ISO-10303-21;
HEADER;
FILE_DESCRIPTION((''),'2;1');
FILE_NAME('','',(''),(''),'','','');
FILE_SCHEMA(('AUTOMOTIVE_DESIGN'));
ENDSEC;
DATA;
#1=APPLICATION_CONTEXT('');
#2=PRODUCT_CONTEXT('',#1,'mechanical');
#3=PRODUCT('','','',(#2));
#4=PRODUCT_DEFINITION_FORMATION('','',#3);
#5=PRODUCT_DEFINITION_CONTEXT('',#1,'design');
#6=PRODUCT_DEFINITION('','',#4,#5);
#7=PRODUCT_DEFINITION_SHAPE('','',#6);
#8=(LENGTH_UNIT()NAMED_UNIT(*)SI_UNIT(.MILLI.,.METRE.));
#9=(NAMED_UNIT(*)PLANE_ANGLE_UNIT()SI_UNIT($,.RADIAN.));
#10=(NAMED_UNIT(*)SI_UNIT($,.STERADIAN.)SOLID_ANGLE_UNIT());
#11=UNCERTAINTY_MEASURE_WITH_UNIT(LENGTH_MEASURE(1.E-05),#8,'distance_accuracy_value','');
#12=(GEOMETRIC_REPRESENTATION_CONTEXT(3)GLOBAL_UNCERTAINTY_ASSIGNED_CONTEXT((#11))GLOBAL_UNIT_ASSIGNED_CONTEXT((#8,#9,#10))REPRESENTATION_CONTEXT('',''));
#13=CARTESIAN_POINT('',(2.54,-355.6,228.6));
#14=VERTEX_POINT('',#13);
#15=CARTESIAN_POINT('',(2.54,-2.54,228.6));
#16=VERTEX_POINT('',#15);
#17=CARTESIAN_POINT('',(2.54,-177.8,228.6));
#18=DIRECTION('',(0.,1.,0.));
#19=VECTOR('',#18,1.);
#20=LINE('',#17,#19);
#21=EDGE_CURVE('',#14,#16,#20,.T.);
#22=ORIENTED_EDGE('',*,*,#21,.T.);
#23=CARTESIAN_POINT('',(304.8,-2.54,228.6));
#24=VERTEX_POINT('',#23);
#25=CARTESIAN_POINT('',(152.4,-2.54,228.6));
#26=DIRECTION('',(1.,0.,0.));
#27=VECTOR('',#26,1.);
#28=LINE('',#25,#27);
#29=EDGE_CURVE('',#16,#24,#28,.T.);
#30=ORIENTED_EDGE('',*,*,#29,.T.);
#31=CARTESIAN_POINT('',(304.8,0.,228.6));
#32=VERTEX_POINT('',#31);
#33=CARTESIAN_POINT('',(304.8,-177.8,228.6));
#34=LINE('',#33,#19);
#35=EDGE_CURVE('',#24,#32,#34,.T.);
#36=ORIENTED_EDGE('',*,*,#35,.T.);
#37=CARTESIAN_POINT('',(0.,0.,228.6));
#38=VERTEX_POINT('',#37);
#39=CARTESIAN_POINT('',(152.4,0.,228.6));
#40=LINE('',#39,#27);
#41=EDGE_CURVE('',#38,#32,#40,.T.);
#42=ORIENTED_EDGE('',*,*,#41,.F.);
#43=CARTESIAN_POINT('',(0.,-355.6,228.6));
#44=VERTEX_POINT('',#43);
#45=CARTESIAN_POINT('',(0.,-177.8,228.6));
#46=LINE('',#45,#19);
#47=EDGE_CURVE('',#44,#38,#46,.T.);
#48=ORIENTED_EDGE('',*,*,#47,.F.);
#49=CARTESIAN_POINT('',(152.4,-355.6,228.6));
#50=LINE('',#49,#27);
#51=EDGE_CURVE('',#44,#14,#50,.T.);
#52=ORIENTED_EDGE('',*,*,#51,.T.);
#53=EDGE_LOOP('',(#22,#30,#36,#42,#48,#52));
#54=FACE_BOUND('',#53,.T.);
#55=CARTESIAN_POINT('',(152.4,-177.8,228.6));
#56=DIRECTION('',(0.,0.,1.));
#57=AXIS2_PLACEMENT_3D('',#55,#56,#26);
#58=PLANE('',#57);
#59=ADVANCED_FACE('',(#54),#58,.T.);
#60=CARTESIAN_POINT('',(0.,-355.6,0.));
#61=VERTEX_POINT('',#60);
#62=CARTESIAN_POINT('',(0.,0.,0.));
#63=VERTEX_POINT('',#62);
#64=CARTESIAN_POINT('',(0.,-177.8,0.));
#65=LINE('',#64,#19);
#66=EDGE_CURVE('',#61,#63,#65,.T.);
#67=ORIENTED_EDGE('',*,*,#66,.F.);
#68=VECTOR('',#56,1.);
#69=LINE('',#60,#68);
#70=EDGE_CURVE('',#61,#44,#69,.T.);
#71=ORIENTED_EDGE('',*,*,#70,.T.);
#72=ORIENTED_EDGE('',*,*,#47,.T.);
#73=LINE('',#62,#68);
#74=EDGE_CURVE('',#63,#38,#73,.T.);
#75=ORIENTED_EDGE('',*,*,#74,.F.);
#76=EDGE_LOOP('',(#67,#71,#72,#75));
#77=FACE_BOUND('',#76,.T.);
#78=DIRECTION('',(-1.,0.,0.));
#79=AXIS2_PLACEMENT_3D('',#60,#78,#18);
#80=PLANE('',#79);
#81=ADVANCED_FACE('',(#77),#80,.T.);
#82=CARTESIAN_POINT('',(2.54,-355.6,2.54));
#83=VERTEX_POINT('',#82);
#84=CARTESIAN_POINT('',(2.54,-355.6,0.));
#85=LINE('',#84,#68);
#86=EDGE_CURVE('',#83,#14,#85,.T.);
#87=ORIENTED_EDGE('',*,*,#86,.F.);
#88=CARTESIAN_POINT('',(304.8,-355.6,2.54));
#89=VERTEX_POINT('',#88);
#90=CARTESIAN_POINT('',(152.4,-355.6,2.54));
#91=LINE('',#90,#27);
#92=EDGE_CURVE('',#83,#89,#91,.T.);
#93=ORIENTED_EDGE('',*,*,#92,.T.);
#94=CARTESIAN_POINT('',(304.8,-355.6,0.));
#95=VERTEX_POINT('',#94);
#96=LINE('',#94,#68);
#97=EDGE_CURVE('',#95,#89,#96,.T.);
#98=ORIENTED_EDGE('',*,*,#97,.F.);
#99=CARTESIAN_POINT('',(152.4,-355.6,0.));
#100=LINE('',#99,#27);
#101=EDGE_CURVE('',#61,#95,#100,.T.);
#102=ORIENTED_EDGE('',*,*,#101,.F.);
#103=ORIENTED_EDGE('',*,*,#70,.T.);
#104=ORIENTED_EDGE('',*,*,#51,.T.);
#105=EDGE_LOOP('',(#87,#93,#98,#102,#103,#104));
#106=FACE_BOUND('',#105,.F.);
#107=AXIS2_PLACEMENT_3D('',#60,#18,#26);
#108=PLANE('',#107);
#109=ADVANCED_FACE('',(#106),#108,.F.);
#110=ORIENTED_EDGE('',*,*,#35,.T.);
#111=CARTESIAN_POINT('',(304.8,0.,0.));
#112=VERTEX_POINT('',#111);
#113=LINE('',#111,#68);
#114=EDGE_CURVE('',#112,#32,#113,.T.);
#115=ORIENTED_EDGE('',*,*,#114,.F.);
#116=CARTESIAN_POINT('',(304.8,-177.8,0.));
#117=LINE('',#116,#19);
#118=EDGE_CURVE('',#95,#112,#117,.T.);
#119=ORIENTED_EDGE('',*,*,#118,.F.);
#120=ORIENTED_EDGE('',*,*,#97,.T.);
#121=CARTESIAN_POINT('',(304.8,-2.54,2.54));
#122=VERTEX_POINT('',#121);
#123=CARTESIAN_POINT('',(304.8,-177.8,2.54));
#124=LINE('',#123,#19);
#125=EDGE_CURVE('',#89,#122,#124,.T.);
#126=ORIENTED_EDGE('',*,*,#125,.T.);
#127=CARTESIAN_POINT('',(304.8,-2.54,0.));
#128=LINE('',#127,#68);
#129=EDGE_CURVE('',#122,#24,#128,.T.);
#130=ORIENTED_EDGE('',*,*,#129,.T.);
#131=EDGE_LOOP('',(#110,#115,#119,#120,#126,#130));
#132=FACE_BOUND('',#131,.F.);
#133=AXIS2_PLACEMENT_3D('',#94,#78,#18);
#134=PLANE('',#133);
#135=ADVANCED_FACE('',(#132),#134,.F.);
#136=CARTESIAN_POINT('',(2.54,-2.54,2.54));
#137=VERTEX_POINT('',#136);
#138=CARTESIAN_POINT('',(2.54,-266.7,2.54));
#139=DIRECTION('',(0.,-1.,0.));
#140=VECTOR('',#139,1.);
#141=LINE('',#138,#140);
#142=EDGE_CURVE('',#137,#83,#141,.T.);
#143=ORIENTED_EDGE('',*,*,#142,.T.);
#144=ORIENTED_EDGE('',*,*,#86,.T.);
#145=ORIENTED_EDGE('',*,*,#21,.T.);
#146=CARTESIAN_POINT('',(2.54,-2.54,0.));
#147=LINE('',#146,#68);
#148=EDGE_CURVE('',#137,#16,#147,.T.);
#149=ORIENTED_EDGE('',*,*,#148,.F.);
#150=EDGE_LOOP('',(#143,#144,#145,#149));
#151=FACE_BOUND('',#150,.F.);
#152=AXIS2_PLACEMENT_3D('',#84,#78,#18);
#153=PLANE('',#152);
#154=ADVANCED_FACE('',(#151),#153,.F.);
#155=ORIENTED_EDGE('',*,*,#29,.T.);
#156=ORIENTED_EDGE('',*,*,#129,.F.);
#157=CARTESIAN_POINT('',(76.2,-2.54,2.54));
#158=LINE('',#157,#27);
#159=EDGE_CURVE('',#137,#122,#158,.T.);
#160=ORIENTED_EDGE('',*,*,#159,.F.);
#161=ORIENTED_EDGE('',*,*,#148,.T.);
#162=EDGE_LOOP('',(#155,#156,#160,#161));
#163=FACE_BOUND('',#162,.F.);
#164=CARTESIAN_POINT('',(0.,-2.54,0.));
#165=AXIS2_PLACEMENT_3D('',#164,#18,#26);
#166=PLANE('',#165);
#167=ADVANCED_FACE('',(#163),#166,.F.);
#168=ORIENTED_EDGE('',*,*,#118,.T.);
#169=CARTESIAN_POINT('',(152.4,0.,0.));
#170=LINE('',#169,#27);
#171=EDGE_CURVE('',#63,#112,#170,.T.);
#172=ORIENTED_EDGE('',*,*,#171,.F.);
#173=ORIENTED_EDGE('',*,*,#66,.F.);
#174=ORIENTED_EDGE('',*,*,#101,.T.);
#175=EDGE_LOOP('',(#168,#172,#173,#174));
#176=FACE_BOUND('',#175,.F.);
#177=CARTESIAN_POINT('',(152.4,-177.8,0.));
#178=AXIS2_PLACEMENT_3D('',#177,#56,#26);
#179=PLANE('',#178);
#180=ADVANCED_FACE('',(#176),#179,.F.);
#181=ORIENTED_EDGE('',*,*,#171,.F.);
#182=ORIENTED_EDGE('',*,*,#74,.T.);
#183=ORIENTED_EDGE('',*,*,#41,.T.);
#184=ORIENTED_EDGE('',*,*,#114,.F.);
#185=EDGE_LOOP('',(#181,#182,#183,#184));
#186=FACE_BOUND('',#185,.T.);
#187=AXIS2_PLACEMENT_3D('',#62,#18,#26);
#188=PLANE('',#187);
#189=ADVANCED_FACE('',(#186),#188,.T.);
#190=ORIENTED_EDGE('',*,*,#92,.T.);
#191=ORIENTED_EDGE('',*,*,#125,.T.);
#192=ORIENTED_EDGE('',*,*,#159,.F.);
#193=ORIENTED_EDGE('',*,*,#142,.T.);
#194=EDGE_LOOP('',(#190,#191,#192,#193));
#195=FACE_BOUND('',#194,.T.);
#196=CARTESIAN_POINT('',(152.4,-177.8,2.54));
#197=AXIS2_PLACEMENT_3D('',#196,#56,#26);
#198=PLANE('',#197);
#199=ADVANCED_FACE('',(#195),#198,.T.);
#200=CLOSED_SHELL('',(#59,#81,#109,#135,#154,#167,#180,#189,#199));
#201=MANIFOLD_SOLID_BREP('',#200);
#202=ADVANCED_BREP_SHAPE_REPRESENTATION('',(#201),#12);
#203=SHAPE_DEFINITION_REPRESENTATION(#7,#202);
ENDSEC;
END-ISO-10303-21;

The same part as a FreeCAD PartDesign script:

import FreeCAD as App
import Part
import Sketcher

V = App.Vector
Q = App.Units.Quantity


def faces_at(feature, points):
    """Names of the faces that lie closest to the given points."""
    faces = feature.Shape.Faces
    near = lambda p: min(range(len(faces)), key=lambda i: faces[i].distToShape(Part.Vertex(*p))[0])
    return sorted({f"Face{near(p) + 1}" for p in points})


def add_polygon(sketch, points):
    """Adds a closed chain of lines whose ends are joined by coincident constraints."""
    first, n = sketch.GeometryCount, len(points)
    for a, b in zip(points, points[1:] + points[:1]):
        sketch.addGeometry(Part.LineSegment(App.Vector(*a, 0), App.Vector(*b, 0)), False)
    for i in range(n):
        sketch.addConstraint(Sketcher.Constraint("Coincident", first + i, 2, first + (i + 1) % n, 1))

doc = App.newDocument("Part")
params = doc.addObject("Spreadsheet::Sheet", "Params")
for row, (alias, value) in enumerate([
    ("sketch1_width", "12 in"),
    ("sketch1_height", "14 in"),
    ("pad1_length", "9 in"),
    ("thickness_wall", "0.1 in"),
], start=1):
    params.set(f"A{row}", alias)
    params.set(f"B{row}", "=" + value)
    params.setAlias(f"B{row}", alias)

body = doc.addObject("PartDesign::Body", "Body")

sketch1 = body.newObject("Sketcher::SketchObject", "Sketch")
sketch1.AttachmentSupport = (doc.getObject("XY_Plane"), [""])
sketch1.MapMode = "FlatFace"
add_polygon(sketch1, [(0, 0), (0, -356), (305, -356), (305, 0)])
sketch1.addConstraint(Sketcher.Constraint("Vertical", 0))
sketch1.addConstraint(Sketcher.Constraint("Horizontal", 1))
sketch1.addConstraint(Sketcher.Constraint("Vertical", 2))
sketch1.addConstraint(Sketcher.Constraint("Horizontal", 3))
sketch1.addConstraint(Sketcher.Constraint("Coincident", 3, 2, -1, 1))
sketch1.addConstraint(Sketcher.Constraint("DistanceX", 1, 1, 1, 2, Q("12 in")))
sketch1.addConstraint(Sketcher.Constraint("DistanceY", 0, 2, 0, 1, Q("14 in")))
sketch1.setExpression("Constraints[9]", "Params.sketch1_width")
sketch1.setExpression("Constraints[10]", "Params.sketch1_height")
pad1 = body.newObject("PartDesign::Pad", "Pad")
pad1.Profile = sketch1
pad1.setExpression("Length", "Params.pad1_length")
doc.recompute()

thickness = body.newObject("PartDesign::Thickness", "Thickness")
thickness.Base = (pad1, faces_at(pad1, [(152.4, -177.8, 228.6), (152.4, -355.6, 114.3), (304.8, -177.8, 114.3)]))
thickness.setExpression("Value", "Params.thickness_wall")
thickness.Reversed = True
thickness.Join = "Arc"

doc.recompute()
